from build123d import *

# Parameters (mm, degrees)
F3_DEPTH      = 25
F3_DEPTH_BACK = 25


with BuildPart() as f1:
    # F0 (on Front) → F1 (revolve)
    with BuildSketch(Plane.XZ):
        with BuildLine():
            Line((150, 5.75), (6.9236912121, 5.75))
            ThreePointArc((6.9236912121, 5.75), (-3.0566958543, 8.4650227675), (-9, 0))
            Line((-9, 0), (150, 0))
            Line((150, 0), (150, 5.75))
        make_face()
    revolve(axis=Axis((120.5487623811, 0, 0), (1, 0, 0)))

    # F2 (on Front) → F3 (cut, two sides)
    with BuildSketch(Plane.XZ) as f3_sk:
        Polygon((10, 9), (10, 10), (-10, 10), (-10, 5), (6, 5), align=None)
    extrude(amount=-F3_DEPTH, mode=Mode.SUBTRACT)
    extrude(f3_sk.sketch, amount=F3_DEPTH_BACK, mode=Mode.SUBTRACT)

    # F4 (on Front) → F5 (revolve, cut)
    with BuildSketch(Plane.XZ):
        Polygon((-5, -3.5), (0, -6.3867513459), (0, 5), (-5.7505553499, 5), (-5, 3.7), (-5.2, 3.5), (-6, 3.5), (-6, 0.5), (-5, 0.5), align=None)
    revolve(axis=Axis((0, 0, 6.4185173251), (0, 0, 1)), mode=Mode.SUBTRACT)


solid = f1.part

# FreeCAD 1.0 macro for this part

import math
import FreeCAD as App
import Part
import Sketcher

V = App.Vector
Q = App.Units.Quantity

doc = App.newDocument("Part")
body = doc.addObject("PartDesign::Body", "Body")

sketch1 = body.newObject("Sketcher::SketchObject", "Sketch")
sketch1.AttachmentSupport = (doc.getObject("XZ_Plane"), [""])
sketch1.MapMode = "FlatFace"
sketch1.addGeometry([
    Part.LineSegment(V(150, 6, 0), V(7, 6, 0)),
    Part.ArcOfCircle(Part.Circle(V(0, 0, 0), V(0, 0, 1), 9), math.radians(40), math.radians(180)),
    Part.LineSegment(V(-9, 0, 0), V(150, 0, 0)),
    Part.LineSegment(V(150, 0, 0), V(150, 6, 0)),
], False)
sketch1.addConstraint([
    Sketcher.Constraint("Coincident", 0, 2, 1, 1),
    Sketcher.Constraint("Coincident", 1, 2, 2, 1),
    Sketcher.Constraint("Coincident", 2, 2, 3, 1),
    Sketcher.Constraint("Coincident", 3, 2, 0, 1),
    Sketcher.Constraint("Horizontal", 0),
    Sketcher.Constraint("Horizontal", 2),
    Sketcher.Constraint("Vertical", 3),
    Sketcher.Constraint("Coincident", 1, 3, -1, 1),
    Sketcher.Constraint("PointOnObject", 1, 2, -1),
    Sketcher.Constraint("Radius", 1, Q("9 mm")),
    Sketcher.Constraint("DistanceX", 2, 1, 2, 2, Q("159 mm")),
    Sketcher.Constraint("DistanceY", 3, 1, 3, 2, Q("5.75 mm")),
])
revolution = body.newObject("PartDesign::Revolution", "Revolution")
revolution.Profile = sketch1
revolution.ReferenceAxis = (sketch1, ["H_Axis"])
revolution.Angle = 360

sketch2 = body.newObject("Sketcher::SketchObject", "Sketch001")
sketch2.AttachmentSupport = (doc.getObject("XZ_Plane"), [""])
sketch2.MapMode = "FlatFace"
sketch2.addGeometry([
    Part.LineSegment(V(10, 9, 0), V(10, 10, 0)),
    Part.LineSegment(V(10, 10, 0), V(-10, 10, 0)),
    Part.LineSegment(V(-10, 10, 0), V(-10, 5, 0)),
    Part.LineSegment(V(-10, 5, 0), V(6, 5, 0)),
    Part.LineSegment(V(6, 5, 0), V(10, 9, 0)),
], False)
sketch2.addConstraint([
    Sketcher.Constraint("Coincident", 0, 2, 1, 1),
    Sketcher.Constraint("Coincident", 1, 2, 2, 1),
    Sketcher.Constraint("Coincident", 2, 2, 3, 1),
    Sketcher.Constraint("Coincident", 3, 2, 4, 1),
    Sketcher.Constraint("Coincident", 4, 2, 0, 1),
    Sketcher.Constraint("Vertical", 0),
    Sketcher.Constraint("Horizontal", 1),
    Sketcher.Constraint("Vertical", 2),
    Sketcher.Constraint("Horizontal", 3),
    Sketcher.Constraint("DistanceX", 1, 2, 1, 1, Q("20 mm")),
    Sketcher.Constraint("DistanceX", 3, 1, 3, 2, Q("16 mm")),
    Sketcher.Constraint("DistanceY", 0, 1, 0, 2, Q("1 mm")),
    Sketcher.Constraint("DistanceY", 2, 2, 2, 1, Q("5 mm")),
    Sketcher.Constraint("DistanceX", -1, 1, 0, 2, Q("10 mm")),
    Sketcher.Constraint("DistanceY", -1, 1, 0, 2, Q("10 mm")),
])
pocket1 = body.newObject("PartDesign::Pocket", "Pocket")
pocket1.Profile = sketch2
pocket1.Type = "ThroughAll"
pocket1.Midplane = True

sketch3 = body.newObject("Sketcher::SketchObject", "Sketch002")
sketch3.AttachmentSupport = (doc.getObject("XZ_Plane"), [""])
sketch3.MapMode = "FlatFace"
sketch3.addGeometry([
    Part.LineSegment(V(-5, -3.5, 0), V(0, -6.39, 0)),
    Part.LineSegment(V(0, -6.39, 0), V(0, 5, 0)),
    Part.LineSegment(V(0, 5, 0), V(-5.75, 5, 0)),
    Part.LineSegment(V(-5.75, 5, 0), V(-5, 3.7, 0)),
    Part.LineSegment(V(-5, 3.7, 0), V(-5.2, 3.5, 0)),
    Part.LineSegment(V(-5.2, 3.5, 0), V(-6, 3.5, 0)),
    Part.LineSegment(V(-6, 3.5, 0), V(-6, 0.5, 0)),
    Part.LineSegment(V(-6, 0.5, 0), V(-5, 0.5, 0)),
    Part.LineSegment(V(-5, 0.5, 0), V(-5, -3.5, 0)),
], False)
sketch3.addConstraint([
    Sketcher.Constraint("Coincident", 0, 2, 1, 1),
    Sketcher.Constraint("Coincident", 1, 2, 2, 1),
    Sketcher.Constraint("Coincident", 2, 2, 3, 1),
    Sketcher.Constraint("Coincident", 3, 2, 4, 1),
    Sketcher.Constraint("Coincident", 4, 2, 5, 1),
    Sketcher.Constraint("Coincident", 5, 2, 6, 1),
    Sketcher.Constraint("Coincident", 6, 2, 7, 1),
    Sketcher.Constraint("Coincident", 7, 2, 8, 1),
    Sketcher.Constraint("Coincident", 8, 2, 0, 1),
    Sketcher.Constraint("Vertical", 1),
    Sketcher.Constraint("Horizontal", 2),
    Sketcher.Constraint("Horizontal", 5),
    Sketcher.Constraint("Vertical", 6),
    Sketcher.Constraint("Horizontal", 7),
    Sketcher.Constraint("Vertical", 8),
    Sketcher.Constraint("PointOnObject", 0, 2, -2),
    Sketcher.Constraint("Vertical", 3, 2, 7, 2),
    Sketcher.Constraint("DistanceX", 7, 1, 7, 2, Q("1 mm")),
    Sketcher.Constraint("DistanceY", 6, 2, 6, 1, Q("3 mm")),
    Sketcher.Constraint("DistanceY", 8, 2, 8, 1, Q("4 mm")),
    Sketcher.Constraint("Angle", 0, Q("-30 deg")),
    Sketcher.Constraint("Angle", 3, Q("-60 deg")),
    Sketcher.Constraint("Angle", 4, Q("-135 deg")),
    Sketcher.Constraint("DistanceX", 5, 2, 5, 1, Q("0.8 mm")),
    Sketcher.Constraint("DistanceY", -1, 1, 1, 2, Q("5 mm")),
    Sketcher.Constraint("DistanceX", 3, 2, -1, 1, Q("5 mm")),
    Sketcher.Constraint("DistanceY", -1, 1, 3, 2, Q("3.7 mm")),
])
groove = body.newObject("PartDesign::Groove", "Groove")
groove.Profile = sketch3
groove.ReferenceAxis = (sketch3, ["V_Axis"])
groove.Angle = 360

doc.recompute()
